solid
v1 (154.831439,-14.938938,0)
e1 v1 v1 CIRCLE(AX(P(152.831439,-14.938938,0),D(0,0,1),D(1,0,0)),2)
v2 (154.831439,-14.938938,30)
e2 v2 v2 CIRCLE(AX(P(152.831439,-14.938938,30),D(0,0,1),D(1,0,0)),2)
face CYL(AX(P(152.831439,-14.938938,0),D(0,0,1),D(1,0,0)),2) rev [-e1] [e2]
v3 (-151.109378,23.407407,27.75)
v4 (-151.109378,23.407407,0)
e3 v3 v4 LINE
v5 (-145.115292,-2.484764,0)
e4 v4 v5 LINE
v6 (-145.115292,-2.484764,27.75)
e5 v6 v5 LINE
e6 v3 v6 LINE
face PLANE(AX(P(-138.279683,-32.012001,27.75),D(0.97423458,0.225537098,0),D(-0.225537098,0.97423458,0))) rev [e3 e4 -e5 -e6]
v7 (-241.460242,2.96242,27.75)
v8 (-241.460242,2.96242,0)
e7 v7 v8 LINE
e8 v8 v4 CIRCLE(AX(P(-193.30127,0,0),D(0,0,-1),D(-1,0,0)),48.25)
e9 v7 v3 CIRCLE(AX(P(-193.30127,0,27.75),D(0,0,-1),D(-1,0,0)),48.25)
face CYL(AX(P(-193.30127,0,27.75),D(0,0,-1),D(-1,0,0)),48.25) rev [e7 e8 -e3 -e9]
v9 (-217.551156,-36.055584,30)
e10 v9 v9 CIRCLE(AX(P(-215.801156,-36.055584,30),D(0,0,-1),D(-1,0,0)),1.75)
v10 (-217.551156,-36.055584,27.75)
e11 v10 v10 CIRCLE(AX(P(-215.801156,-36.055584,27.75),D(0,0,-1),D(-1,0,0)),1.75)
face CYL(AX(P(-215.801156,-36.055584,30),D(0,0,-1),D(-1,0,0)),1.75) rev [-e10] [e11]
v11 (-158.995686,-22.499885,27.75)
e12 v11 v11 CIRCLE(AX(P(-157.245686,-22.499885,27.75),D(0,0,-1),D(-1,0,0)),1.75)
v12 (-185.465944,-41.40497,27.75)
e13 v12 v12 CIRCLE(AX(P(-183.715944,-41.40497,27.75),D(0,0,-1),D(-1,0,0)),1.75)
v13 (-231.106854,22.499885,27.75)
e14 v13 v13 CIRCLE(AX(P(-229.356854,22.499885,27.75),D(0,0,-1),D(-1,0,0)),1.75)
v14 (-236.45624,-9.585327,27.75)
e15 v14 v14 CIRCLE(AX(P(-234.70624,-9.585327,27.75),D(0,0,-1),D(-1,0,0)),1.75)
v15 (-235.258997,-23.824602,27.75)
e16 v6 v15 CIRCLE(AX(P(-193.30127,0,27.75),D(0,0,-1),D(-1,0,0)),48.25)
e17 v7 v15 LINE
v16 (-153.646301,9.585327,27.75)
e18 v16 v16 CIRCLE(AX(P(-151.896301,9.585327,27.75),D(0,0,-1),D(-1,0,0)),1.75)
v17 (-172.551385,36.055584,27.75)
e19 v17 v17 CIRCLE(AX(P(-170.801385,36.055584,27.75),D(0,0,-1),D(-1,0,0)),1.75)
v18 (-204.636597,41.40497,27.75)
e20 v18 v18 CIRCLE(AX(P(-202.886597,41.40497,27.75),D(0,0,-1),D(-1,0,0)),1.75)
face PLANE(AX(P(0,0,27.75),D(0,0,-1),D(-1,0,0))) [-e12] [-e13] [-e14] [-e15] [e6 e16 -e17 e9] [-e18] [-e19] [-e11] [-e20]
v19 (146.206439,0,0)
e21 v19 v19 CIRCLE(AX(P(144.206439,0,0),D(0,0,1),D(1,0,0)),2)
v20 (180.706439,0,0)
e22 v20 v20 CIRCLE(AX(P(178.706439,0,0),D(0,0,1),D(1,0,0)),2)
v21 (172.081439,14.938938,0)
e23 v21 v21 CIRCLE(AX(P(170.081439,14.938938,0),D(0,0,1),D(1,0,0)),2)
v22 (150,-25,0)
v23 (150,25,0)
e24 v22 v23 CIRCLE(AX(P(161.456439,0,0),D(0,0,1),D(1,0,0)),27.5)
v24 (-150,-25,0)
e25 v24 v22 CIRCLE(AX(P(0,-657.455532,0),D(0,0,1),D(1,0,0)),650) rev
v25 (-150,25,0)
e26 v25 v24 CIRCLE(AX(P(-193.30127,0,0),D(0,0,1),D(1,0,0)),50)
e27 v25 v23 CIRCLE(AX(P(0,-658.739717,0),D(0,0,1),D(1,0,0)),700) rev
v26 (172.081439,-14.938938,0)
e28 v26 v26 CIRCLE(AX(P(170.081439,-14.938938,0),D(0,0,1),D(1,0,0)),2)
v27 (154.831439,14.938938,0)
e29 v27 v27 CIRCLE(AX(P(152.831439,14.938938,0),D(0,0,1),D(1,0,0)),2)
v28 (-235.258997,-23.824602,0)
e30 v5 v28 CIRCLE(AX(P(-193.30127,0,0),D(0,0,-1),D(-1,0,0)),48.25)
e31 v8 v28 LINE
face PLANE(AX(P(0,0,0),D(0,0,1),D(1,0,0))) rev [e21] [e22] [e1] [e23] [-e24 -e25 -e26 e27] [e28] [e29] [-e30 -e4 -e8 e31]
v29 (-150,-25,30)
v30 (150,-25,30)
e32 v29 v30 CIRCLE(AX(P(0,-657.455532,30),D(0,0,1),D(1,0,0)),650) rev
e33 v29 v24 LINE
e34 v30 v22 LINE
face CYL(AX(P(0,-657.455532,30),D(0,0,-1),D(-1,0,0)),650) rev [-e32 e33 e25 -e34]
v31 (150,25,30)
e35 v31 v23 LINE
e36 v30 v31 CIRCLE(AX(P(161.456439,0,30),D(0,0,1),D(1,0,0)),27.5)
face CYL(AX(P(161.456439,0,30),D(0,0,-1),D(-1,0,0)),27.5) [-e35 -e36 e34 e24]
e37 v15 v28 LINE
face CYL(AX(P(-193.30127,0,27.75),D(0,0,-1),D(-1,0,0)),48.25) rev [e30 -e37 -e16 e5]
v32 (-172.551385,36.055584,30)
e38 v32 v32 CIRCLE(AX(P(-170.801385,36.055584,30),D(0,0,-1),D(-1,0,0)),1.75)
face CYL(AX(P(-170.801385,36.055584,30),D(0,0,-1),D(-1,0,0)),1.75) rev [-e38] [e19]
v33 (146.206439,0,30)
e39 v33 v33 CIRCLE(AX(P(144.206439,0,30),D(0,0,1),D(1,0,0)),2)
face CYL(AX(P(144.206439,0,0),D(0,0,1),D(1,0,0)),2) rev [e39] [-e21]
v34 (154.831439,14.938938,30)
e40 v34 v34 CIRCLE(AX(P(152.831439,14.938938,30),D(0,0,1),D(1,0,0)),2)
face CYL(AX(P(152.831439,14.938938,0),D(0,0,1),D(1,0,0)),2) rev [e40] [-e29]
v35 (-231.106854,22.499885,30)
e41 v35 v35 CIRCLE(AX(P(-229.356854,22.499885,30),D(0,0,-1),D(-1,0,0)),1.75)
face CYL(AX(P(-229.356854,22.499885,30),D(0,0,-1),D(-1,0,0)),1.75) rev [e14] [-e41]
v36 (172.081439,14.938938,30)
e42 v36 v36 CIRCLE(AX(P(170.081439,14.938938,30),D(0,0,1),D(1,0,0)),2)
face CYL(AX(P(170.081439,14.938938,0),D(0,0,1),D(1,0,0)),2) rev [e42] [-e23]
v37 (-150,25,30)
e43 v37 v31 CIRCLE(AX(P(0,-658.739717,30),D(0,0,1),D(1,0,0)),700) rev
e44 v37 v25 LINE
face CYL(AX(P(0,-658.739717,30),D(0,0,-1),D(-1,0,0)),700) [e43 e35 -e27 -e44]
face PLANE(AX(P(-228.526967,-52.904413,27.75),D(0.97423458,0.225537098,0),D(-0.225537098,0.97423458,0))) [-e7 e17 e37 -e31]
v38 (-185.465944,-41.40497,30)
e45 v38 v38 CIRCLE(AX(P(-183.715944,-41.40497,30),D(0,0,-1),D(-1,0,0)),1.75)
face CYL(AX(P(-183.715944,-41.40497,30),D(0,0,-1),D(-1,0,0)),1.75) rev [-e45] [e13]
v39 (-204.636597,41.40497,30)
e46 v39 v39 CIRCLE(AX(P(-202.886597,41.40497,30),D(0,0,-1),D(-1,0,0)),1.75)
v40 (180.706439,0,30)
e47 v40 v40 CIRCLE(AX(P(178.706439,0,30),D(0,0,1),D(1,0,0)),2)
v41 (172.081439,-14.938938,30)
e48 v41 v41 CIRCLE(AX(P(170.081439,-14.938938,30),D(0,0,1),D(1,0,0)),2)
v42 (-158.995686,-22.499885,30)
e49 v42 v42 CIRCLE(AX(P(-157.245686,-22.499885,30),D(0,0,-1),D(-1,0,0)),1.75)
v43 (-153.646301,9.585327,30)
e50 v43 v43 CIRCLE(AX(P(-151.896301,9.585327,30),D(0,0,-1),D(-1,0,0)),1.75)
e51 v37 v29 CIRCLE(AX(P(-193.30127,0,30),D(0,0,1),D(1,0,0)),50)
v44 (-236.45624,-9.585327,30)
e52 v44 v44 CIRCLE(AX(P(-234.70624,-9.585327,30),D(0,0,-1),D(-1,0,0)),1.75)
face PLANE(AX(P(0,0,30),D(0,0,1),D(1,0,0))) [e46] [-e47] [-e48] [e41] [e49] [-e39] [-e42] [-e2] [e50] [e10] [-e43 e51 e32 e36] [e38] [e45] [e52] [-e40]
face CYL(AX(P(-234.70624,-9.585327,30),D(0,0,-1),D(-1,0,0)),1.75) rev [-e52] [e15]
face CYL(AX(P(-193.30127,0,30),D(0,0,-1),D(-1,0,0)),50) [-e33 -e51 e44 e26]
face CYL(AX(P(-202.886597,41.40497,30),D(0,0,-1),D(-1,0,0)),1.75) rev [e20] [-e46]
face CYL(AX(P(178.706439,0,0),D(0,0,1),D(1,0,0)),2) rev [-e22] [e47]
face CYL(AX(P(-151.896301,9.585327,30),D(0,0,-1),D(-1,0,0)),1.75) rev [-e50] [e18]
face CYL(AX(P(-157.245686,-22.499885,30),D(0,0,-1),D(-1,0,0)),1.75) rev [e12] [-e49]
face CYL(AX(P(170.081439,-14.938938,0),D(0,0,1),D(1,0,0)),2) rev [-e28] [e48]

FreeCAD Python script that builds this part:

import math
import FreeCAD as App
import Part
import Sketcher

V = App.Vector
Q = App.Units.Quantity

doc = App.newDocument("Part")
body = doc.addObject("PartDesign::Body", "Body")

sketch1 = body.newObject("Sketcher::SketchObject", "Sketch")
sketch1.AttachmentSupport = (doc.getObject("XY_Plane"), [""])
sketch1.MapMode = "FlatFace"
sketch1.addGeometry([
    Part.ArcOfCircle(Part.Circle(V(0, -657, 0), V(0, 0, 1), 650), math.radians(77), math.radians(103)),
    Part.ArcOfCircle(Part.Circle(V(161, 0, 0), V(0, 0, 1), 28), math.radians(-115), math.radians(0)),
    Part.ArcOfCircle(Part.Circle(V(161, 0, 0), V(0, 0, 1), 28), math.radians(0), math.radians(115)),
    Part.ArcOfCircle(Part.Circle(V(0, -659, 0), V(0, 0, 1), 700), math.radians(78), math.radians(102)),
    Part.ArcOfCircle(Part.Circle(V(-193, 0, 0), V(0, 0, 1), 50), math.radians(30), math.radians(330)),
], False)
sketch1.addConstraint([
    Sketcher.Constraint("Coincident", 0, 1, 1, 1),
    Sketcher.Constraint("Tangent", 1, 2, 2, 1),
    Sketcher.Constraint("Coincident", 2, 2, 3, 1),
    Sketcher.Constraint("Coincident", 3, 2, 4, 1),
    Sketcher.Constraint("Coincident", 4, 2, 0, 2),
    Sketcher.Constraint("Equal", 1, 2),
    Sketcher.Constraint("Symmetric", 0, 1, 3, 2, -1, 1),
    Sketcher.Constraint("Symmetric", 2, 2, 4, 2, -1, 1),
    Sketcher.Constraint("PointOnObject", 0, 3, -2),
    Sketcher.Constraint("PointOnObject", 1, 3, -1),
    Sketcher.Constraint("PointOnObject", 1, 2, -1),
    Sketcher.Constraint("Radius", 0, Q("650 mm")),
    Sketcher.Constraint("Radius", 3, Q("700 mm")),
    Sketcher.Constraint("Radius", 4, Q("50 mm")),
    Sketcher.Constraint("Radius", 1, Q("27.5 mm")),
    Sketcher.Constraint("DistanceY", 0, 1, -1, 1, Q("25 mm")),
    Sketcher.Constraint("DistanceX", -1, 1, 2, 2, Q("150 mm")),
])
pad1 = body.newObject("PartDesign::Pad", "Pad")
pad1.Profile = sketch1
pad1.Length = 30

sketch2 = body.newObject("Sketcher::SketchObject", "Sketch001")
sketch2.AttachmentSupport = (doc.getObject("XY_Plane"), [""])
sketch2.MapMode = "FlatFace"
sketch2.addGeometry([
    Part.ArcOfCircle(Part.Circle(V(-193, 0, 0), V(0, 0, 1), 48), math.radians(29), math.radians(176)),
    Part.LineSegment(V(-151, 23, 0), V(-145, -2, 0)),
    Part.ArcOfCircle(Part.Circle(V(-193, 0, 0), V(0, 0, 1), 48), math.radians(-150), math.radians(-3)),
    Part.LineSegment(V(-235, -24, 0), V(-241, 3, 0)),
], False)
sketch2.addConstraint([
    Sketcher.Constraint("Coincident", 0, 1, 1, 1),
    Sketcher.Constraint("Coincident", 1, 2, 2, 2),
    Sketcher.Constraint("Coincident", 2, 1, 3, 1),
    Sketcher.Constraint("Coincident", 3, 2, 0, 2),
    Sketcher.Constraint("Coincident", 2, 3, 0, 3),
    Sketcher.Constraint("Equal", 0, 2),
    Sketcher.Constraint("PointOnObject", 0, 3, -1),
    Sketcher.Constraint("Parallel", 1, 3),
    Sketcher.Constraint("Radius", 0, Q("48.25 mm")),
    Sketcher.Constraint("DistanceY", 2, 1, -1, 1, Q("23.824602 mm")),
    Sketcher.Constraint("DistanceX", 0, 3, -1, 1, Q("193.30127 mm")),
    Sketcher.Constraint("DistanceX", 3, 2, -1, 1, Q("241.460242 mm")),
    Sketcher.Constraint("DistanceY", 1, 2, 0, 1, Q("25.89217 mm")),
])
pocket1 = body.newObject("PartDesign::Pocket", "Pocket")
pocket1.Profile = sketch2
pocket1.Length = 27.75
pocket1.Reversed = True

sketch3 = body.newObject("Sketcher::SketchObject", "Sketch002")
sketch3.AttachmentSupport = (doc.getObject("XY_Plane"), [""])
sketch3.MapMode = "FlatFace"
sketch3.AttachmentOffset = App.Placement(V(0, 0, 27.75), App.Rotation())
sketch3.addGeometry([
    Part.Circle(V(-151.9, 9.6, 0), V(0, 0, 1), 1.8),
    Part.Circle(V(-170.8, 36.1, 0), V(0, 0, 1), 1.8),
    Part.Circle(V(-202.9, 41.4, 0), V(0, 0, 1), 1.8),
    Part.Circle(V(-229.4, 22.5, 0), V(0, 0, 1), 1.8),
    Part.Circle(V(-234.7, -9.6, 0), V(0, 0, 1), 1.8),
    Part.Circle(V(-215.8, -36.1, 0), V(0, 0, 1), 1.8),
    Part.Circle(V(-183.7, -41.4, 0), V(0, 0, 1), 1.8),
    Part.Circle(V(-157.2, -22.5, 0), V(0, 0, 1), 1.8),
], False)
sketch3.addConstraint([
    Sketcher.Constraint("Equal", 0, 1),
    Sketcher.Constraint("Equal", 1, 2),
    Sketcher.Constraint("Equal", 2, 3),
    Sketcher.Constraint("Equal", 3, 4),
    Sketcher.Constraint("Equal", 4, 5),
    Sketcher.Constraint("Equal", 5, 6),
    Sketcher.Constraint("Equal", 6, 7),
    Sketcher.Constraint("Diameter", 0, Q("3.5 mm")),
    Sketcher.Constraint("DistanceX", 0, 3, -1, 1, Q("151.896301 mm")),
    Sketcher.Constraint("DistanceY", 3, 3, 1, 3, Q("13.555699 mm")),
    Sketcher.Constraint("DistanceX", 3, 3, 5, 3, Q("13.555699 mm")),
    Sketcher.Constraint("DistanceY", 5, 3, 7, 3, Q("13.555699 mm")),
    Sketcher.Constraint("DistanceX", 1, 3, 7, 3, Q("13.555699 mm")),
    Sketcher.Constraint("DistanceY", -1, 1, 2, 3, Q("41.40497 mm")),
    Sketcher.Constraint("DistanceX", 4, 3, -1, 1, Q("234.70624 mm")),
    Sketcher.Constraint("DistanceY", 6, 3, -1, 1, Q("41.40497 mm")),
    Sketcher.Constraint("DistanceX", 3, 3, 1, 3, Q("58.55547 mm")),
    Sketcher.Constraint("DistanceY", 0, 3, 3, 3, Q("12.914559 mm")),
    Sketcher.Constraint("DistanceY", 4, 3, 1, 3, Q("45.640911 mm")),
    Sketcher.Constraint("DistanceY", 5, 3, 3, 3, Q("58.55547 mm")),
    Sketcher.Constraint("DistanceX", 5, 3, 2, 3, Q("12.914559 mm")),
    Sketcher.Constraint("DistanceX", 6, 3, 1, 3, Q("12.914559 mm")),
    Sketcher.Constraint("DistanceY", -1, 1, 0, 3, Q("9.585327 mm")),
    Sketcher.Constraint("DistanceX", 1, 3, -1, 1, Q("170.801385 mm")),
])
pocket2 = body.newObject("PartDesign::Pocket", "Pocket001")
pocket2.Profile = sketch3
pocket2.Type = "ThroughAll"
pocket2.Reversed = True

sketch4 = body.newObject("Sketcher::SketchObject", "Sketch003")
sketch4.AttachmentSupport = (doc.getObject("XY_Plane"), [""])
sketch4.MapMode = "FlatFace"
sketch4.AttachmentOffset = App.Placement(V(0, 0, 30), App.Rotation())
sketch4.addGeometry([
    Part.Circle(V(178.7, 0, 0), V(0, 0, 1), 2),
    Part.Circle(V(170.1, -14.9, 0), V(0, 0, 1), 2),
    Part.Circle(V(152.8, -14.9, 0), V(0, 0, 1), 2),
    Part.Circle(V(144.2, 0, 0), V(0, 0, 1), 2),
    Part.Circle(V(152.8, 14.9, 0), V(0, 0, 1), 2),
    Part.Circle(V(170.1, 14.9, 0), V(0, 0, 1), 2),
], False)
sketch4.addConstraint([
    Sketcher.Constraint("Equal", 0, 1),
    Sketcher.Constraint("Equal", 1, 2),
    Sketcher.Constraint("Equal", 2, 3),
    Sketcher.Constraint("Equal", 3, 4),
    Sketcher.Constraint("Equal", 4, 5),
    Sketcher.Constraint("Symmetric", 2, 3, 4, 3, -1),
    Sketcher.Constraint("Symmetric", 1, 3, 5, 3, -1),
    Sketcher.Constraint("PointOnObject", 0, 3, -1),
    Sketcher.Constraint("PointOnObject", 3, 3, -1),
    Sketcher.Constraint("Horizontal", 1, 3, 2, 3),
    Sketcher.Constraint("Diameter", 0, Q("4 mm")),
    Sketcher.Constraint("DistanceX", 3, 3, 0, 3, Q("34.5 mm")),
    Sketcher.Constraint("DistanceX", 2, 3, 1, 3, Q("17.25 mm")),
    Sketcher.Constraint("DistanceX", 1, 3, 0, 3, Q("8.625 mm")),
    Sketcher.Constraint("DistanceX", -1, 1, 0, 3, Q("178.706439 mm")),
    Sketcher.Constraint("DistanceY", 1, 3, -1, 1, Q("14.938938 mm")),
])
pocket3 = body.newObject("PartDesign::Pocket", "Pocket002")
pocket3.Profile = sketch4
pocket3.Type = "ThroughAll"

doc.recompute()
